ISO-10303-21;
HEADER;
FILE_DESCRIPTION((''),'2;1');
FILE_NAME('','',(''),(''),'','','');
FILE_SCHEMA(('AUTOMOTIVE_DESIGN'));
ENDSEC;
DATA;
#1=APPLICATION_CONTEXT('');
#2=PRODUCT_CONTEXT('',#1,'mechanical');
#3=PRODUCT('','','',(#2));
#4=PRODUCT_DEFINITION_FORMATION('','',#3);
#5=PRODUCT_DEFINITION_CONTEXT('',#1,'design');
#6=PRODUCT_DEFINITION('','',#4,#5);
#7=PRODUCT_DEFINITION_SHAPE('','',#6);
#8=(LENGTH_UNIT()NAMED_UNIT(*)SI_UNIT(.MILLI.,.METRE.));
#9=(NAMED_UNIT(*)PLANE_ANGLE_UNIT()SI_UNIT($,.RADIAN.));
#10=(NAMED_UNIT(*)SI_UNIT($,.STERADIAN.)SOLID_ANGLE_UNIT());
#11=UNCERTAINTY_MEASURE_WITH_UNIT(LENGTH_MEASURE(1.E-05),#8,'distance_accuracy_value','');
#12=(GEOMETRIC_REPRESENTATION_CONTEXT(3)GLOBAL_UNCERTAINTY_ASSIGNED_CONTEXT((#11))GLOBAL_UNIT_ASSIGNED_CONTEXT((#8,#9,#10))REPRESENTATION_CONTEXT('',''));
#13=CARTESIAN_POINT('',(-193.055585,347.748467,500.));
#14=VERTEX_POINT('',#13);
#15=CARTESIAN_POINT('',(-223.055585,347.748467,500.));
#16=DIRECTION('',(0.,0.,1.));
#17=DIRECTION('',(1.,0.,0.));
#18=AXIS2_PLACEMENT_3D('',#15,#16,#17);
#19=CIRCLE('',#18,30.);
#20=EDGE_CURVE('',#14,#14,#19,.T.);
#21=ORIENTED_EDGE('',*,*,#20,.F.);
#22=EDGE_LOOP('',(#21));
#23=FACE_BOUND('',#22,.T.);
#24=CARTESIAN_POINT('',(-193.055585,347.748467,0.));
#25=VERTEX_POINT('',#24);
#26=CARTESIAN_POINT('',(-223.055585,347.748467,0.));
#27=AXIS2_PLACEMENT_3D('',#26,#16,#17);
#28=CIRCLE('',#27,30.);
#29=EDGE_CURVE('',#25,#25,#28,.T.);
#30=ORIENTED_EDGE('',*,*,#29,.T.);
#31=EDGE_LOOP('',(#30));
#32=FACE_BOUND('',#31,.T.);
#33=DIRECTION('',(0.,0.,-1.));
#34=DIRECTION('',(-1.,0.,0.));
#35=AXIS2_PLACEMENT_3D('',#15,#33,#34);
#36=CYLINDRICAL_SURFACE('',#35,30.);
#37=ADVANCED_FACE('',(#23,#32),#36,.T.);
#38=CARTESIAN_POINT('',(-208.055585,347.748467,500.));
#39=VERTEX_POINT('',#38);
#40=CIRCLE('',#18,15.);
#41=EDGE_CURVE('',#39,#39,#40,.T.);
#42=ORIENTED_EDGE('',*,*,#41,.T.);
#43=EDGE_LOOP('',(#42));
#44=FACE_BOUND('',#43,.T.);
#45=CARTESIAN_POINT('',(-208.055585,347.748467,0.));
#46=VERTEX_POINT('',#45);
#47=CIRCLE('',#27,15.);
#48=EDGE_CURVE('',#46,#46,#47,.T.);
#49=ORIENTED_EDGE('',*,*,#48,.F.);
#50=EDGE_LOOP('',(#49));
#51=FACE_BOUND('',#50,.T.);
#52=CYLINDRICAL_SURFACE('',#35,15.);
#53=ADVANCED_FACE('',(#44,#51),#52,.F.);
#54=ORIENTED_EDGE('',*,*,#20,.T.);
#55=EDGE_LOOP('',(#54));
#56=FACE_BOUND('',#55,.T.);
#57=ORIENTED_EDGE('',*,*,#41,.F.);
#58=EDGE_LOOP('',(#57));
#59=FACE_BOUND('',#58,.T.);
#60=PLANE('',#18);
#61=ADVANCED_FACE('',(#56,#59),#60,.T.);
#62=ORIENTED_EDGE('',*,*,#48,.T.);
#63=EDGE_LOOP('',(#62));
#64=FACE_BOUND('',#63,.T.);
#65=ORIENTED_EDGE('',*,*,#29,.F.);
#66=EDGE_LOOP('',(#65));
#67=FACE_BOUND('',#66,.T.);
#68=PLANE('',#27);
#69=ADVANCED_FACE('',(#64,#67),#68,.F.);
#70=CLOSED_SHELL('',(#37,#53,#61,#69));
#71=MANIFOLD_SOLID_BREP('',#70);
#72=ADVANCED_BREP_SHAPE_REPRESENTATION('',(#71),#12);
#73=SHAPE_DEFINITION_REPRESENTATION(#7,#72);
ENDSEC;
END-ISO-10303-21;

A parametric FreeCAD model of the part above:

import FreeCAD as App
import Part
import Sketcher

V = App.Vector

doc = App.newDocument("Part")
params = doc.addObject("Spreadsheet::Sheet", "Params")
for row, (alias, value) in enumerate([
    ("sketch1_diameter", "60 mm"),
    ("sketch1_diameter2", "30 mm"),
    ("pad1_length", "500 mm"),
], start=1):
    params.set(f"A{row}", alias)
    params.set(f"B{row}", "=" + value)
    params.setAlias(f"B{row}", alias)

body = doc.addObject("PartDesign::Body", "Body")

# Sketch on XY plane
sketch1 = doc.addObject("Sketcher::SketchObject", "Sketch")
body.addObject(sketch1)
sketch1.AttachmentSupport = (doc.XY_Plane, [""])
sketch1.MapMode = "FlatFace"
sketch1.addGeometry([
    Part.Circle(V(-223, 348, 0), V(0, 0, 1), 30),
    Part.Circle(V(-223, 348, 0), V(0, 0, 1), 15),
], False)
sketch1.addConstraint([
    Sketcher.Constraint("Coincident", 1, 3, 0, 3),
    Sketcher.Constraint("Diameter", 0, 60.0),
    Sketcher.Constraint("Diameter", 1, 30.0),
    Sketcher.Constraint("DistanceX", 0, 3, -1, 1, 223.055585),
    Sketcher.Constraint("DistanceY", -1, 1, 0, 3, 347.748467),
])
sketch1.setExpression("Constraints[1]", "Params.sketch1_diameter")
sketch1.setExpression("Constraints[2]", "Params.sketch1_diameter2")
pad1 = doc.addObject("PartDesign::Pad", "Pad")
body.addObject(pad1)
pad1.Profile = sketch1
pad1.setExpression("Length", "Params.pad1_length")

doc.recompute()
